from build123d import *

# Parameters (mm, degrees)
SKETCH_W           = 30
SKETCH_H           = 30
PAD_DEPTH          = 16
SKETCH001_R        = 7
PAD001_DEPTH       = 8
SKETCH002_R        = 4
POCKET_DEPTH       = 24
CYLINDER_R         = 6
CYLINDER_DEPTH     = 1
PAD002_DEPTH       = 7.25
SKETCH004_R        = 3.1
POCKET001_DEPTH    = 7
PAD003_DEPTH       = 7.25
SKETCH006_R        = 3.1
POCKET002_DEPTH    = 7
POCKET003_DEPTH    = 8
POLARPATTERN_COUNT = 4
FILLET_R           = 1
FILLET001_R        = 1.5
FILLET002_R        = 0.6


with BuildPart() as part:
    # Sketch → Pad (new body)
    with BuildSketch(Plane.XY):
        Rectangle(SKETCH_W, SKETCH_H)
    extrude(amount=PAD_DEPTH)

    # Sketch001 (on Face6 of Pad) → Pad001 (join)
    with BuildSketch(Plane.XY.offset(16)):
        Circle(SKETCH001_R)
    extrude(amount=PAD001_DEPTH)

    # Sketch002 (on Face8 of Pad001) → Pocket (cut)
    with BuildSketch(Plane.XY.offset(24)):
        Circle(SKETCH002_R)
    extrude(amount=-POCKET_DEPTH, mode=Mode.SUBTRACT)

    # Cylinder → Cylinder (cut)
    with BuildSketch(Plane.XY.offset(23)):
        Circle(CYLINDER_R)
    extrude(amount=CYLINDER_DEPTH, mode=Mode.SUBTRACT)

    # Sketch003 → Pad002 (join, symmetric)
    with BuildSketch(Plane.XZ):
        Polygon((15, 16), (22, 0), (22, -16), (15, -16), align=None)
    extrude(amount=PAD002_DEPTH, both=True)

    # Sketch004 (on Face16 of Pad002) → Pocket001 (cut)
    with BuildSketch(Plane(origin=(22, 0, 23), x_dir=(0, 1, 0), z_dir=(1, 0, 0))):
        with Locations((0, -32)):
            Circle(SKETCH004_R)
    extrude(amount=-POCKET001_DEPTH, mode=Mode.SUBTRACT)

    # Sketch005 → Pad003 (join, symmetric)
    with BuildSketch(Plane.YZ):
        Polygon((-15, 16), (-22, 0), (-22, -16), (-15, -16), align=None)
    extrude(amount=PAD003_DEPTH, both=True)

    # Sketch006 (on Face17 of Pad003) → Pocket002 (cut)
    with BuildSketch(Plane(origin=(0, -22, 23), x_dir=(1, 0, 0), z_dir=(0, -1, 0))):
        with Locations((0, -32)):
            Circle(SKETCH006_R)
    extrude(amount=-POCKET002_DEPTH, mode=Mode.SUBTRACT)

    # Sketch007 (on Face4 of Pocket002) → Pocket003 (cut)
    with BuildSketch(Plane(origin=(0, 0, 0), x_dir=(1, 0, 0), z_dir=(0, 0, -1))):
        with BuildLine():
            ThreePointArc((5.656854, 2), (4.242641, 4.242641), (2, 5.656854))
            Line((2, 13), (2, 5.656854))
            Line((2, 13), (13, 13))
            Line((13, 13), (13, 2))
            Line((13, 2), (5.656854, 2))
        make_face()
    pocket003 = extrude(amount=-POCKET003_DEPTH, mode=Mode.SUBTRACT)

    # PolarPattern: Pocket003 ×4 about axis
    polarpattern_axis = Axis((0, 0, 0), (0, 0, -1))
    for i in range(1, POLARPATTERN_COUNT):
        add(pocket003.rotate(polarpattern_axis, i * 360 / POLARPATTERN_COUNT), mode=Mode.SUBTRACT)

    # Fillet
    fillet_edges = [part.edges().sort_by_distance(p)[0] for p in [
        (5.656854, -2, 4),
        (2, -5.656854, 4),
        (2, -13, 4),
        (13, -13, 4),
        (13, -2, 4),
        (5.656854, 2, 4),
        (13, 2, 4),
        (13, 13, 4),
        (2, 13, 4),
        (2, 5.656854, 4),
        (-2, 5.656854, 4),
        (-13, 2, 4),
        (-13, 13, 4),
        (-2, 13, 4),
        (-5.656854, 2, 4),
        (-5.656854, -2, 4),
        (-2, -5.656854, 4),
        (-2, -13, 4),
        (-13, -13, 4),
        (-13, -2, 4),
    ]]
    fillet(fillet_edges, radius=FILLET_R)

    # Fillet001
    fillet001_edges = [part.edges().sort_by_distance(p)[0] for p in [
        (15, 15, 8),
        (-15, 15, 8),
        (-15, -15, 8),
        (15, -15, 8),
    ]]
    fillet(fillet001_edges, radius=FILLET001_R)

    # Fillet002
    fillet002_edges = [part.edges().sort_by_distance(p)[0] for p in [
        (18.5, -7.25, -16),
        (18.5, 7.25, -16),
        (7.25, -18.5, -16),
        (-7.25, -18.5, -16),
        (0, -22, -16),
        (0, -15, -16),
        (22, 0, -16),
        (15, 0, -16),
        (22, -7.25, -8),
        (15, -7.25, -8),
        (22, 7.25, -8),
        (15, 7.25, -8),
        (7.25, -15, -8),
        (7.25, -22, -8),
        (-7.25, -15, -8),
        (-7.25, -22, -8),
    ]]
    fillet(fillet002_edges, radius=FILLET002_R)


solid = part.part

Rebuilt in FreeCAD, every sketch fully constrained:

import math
import FreeCAD as App
import Part
import Sketcher
from FreeCAD import Vector


def edges_at(feature, points):
    """Names of the edges that pass closest to the given points."""
    edges = feature.Shape.Edges
    near = lambda p: min(range(len(edges)), key=lambda i: edges[i].distToShape(Part.Vertex(*p))[0])
    return sorted({f"Edge{near(p) + 1}" for p in points})


def add_polygon(sketch, points):
    """Adds a closed chain of lines whose ends are joined by coincident constraints."""
    first, n = sketch.GeometryCount, len(points)
    for a, b in zip(points, points[1:] + points[:1]):
        sketch.addGeometry(Part.LineSegment(App.Vector(*a, 0), App.Vector(*b, 0)), False)
    for i in range(n):
        sketch.addConstraint(Sketcher.Constraint("Coincident", first + i, 2, first + (i + 1) % n, 1))

doc = App.newDocument("Part")
body = doc.addObject("PartDesign::Body", "Body")

# Sketch on XY plane
sketch1 = body.newObject("Sketcher::SketchObject", "Sketch")
sketch1.AttachmentSupport = (doc.getObject("XY_Plane"), [""])
sketch1.MapMode = "FlatFace"
add_polygon(sketch1, [(-15, 15), (-15, -15), (15, -15), (15, 15)])  # lines 0-3
sketch1.addConstraint([
    Sketcher.Constraint("Vertical", 0),
    Sketcher.Constraint("Horizontal", 1),
    Sketcher.Constraint("Vertical", 2),
    Sketcher.Constraint("Horizontal", 3),
    Sketcher.Constraint("Symmetric", 0, 2, 2, 2, -1, 1),
    Sketcher.Constraint("Equal", 3, 0),
    Sketcher.Constraint("DistanceX", 1, 1, 1, 2, 30.0),
])
pad1 = body.newObject("PartDesign::Pad", "Pad")
pad1.Profile = sketch1
pad1.Length = 16

# Sketch on XY plane
sketch2 = body.newObject("Sketcher::SketchObject", "Sketch001")
sketch2.AttachmentSupport = (doc.getObject("XY_Plane"), [""])
sketch2.MapMode = "FlatFace"
sketch2.AttachmentOffset = App.Placement(Vector(0, 0, 16), App.Rotation())
sketch2.addGeometry(Part.Circle(Vector(0, 0, 0), Vector(0, 0, 1), 7), False)
sketch2.addConstraint([
    Sketcher.Constraint("Coincident", 0, 3, -1, 1),
    Sketcher.Constraint("Diameter", 0, 14.0),
])
pad2 = body.newObject("PartDesign::Pad", "Pad001")
pad2.Profile = sketch2
pad2.Length = 8

# Sketch on XY plane
sketch3 = body.newObject("Sketcher::SketchObject", "Sketch002")
sketch3.AttachmentSupport = (doc.getObject("XY_Plane"), [""])
sketch3.MapMode = "FlatFace"
sketch3.AttachmentOffset = App.Placement(Vector(0, 0, 24), App.Rotation())
sketch3.addGeometry(Part.Circle(Vector(0, 0, 0), Vector(0, 0, 1), 4), False)
sketch3.addConstraint([
    Sketcher.Constraint("Coincident", 0, 3, -1, 1),
    Sketcher.Constraint("Diameter", 0, 8.0),
])
pocket1 = body.newObject("PartDesign::Pocket", "Pocket")
pocket1.Profile = sketch3
pocket1.Length = 24

# Sketch on XY plane
sketch4 = body.newObject("Sketcher::SketchObject", "Sketch003")
sketch4.AttachmentSupport = (doc.getObject("XY_Plane"), [""])
sketch4.MapMode = "FlatFace"
sketch4.AttachmentOffset = App.Placement(Vector(0, 0, 23), App.Rotation())
sketch4.addGeometry(Part.Circle(Vector(0, 0, 0), Vector(0, 0, 1), 6), False)
sketch4.addConstraint([
    Sketcher.Constraint("Coincident", 0, 3, -1, 1),
    Sketcher.Constraint("Diameter", 0, 12.0),
])
pocket2 = body.newObject("PartDesign::Pocket", "Pocket001")
pocket2.Profile = sketch4
pocket2.Length = 1
pocket2.Reversed = True

# Sketch on XZ plane
sketch5 = body.newObject("Sketcher::SketchObject", "Sketch004")
sketch5.AttachmentSupport = (doc.getObject("XZ_Plane"), [""])
sketch5.MapMode = "FlatFace"
add_polygon(sketch5, [(22, 0), (15, 16), (15, -16), (22, -16)])  # lines 0-3
sketch5.addConstraint([
    Sketcher.Constraint("Vertical", 1),
    Sketcher.Constraint("Horizontal", 2),
    Sketcher.Constraint("Vertical", 3),
    Sketcher.Constraint("PointOnObject", 3, 2, -1),
    Sketcher.Constraint("DistanceX", 2, 1, 2, 2, 7.0),
    Sketcher.Constraint("DistanceY", 1, 2, 1, 1, 32.0),
    Sketcher.Constraint("DistanceY", 3, 1, 3, 2, 16.0),
    Sketcher.Constraint("DistanceX", -1, 1, 0, 2, 15.0),
])
pad3 = body.newObject("PartDesign::Pad", "Pad002")
pad3.Profile = sketch5
pad3.Length = 14.5
pad3.Midplane = True

# Sketch on YZ plane
sketch6 = body.newObject("Sketcher::SketchObject", "Sketch005")
sketch6.AttachmentSupport = (doc.getObject("YZ_Plane"), [""])
sketch6.MapMode = "FlatFace"
sketch6.AttachmentOffset = App.Placement(Vector(0, 0, 22), App.Rotation())
sketch6.addGeometry(Part.Circle(Vector(0, -9, 0), Vector(0, 0, 1), 3.1), False)
sketch6.addConstraint([
    Sketcher.Constraint("PointOnObject", 0, 3, -2),
    Sketcher.Constraint("Diameter", 0, 6.2),
    Sketcher.Constraint("DistanceY", 0, 3, -1, 1, 9.0),
])
pocket3 = body.newObject("PartDesign::Pocket", "Pocket002")
pocket3.Profile = sketch6
pocket3.Length = 7

# Sketch on YZ plane
sketch7 = body.newObject("Sketcher::SketchObject", "Sketch006")
sketch7.AttachmentSupport = (doc.getObject("YZ_Plane"), [""])
sketch7.MapMode = "FlatFace"
add_polygon(sketch7, [(-15, 16), (-22, 0), (-22, -16), (-15, -16)])  # lines 0-3
sketch7.addConstraint([
    Sketcher.Constraint("Vertical", 1),
    Sketcher.Constraint("Horizontal", 2),
    Sketcher.Constraint("Vertical", 3),
    Sketcher.Constraint("PointOnObject", 0, 2, -1),
    Sketcher.Constraint("DistanceX", 2, 1, 2, 2, 7.0),
    Sketcher.Constraint("DistanceY", 1, 2, 1, 1, 16.0),
    Sketcher.Constraint("DistanceY", 3, 1, 3, 2, 32.0),
    Sketcher.Constraint("DistanceX", 0, 2, -1, 1, 22.0),
])
pad4 = body.newObject("PartDesign::Pad", "Pad003")
pad4.Profile = sketch7
pad4.Length = 14.5
pad4.Midplane = True

# Sketch on XZ plane
sketch8 = body.newObject("Sketcher::SketchObject", "Sketch007")
sketch8.AttachmentSupport = (doc.getObject("XZ_Plane"), [""])
sketch8.MapMode = "FlatFace"
sketch8.AttachmentOffset = App.Placement(Vector(0, 0, 22), App.Rotation())
sketch8.addGeometry(Part.Circle(Vector(0, -9, 0), Vector(0, 0, 1), 3.1), False)
sketch8.addConstraint([
    Sketcher.Constraint("PointOnObject", 0, 3, -2),
    Sketcher.Constraint("Diameter", 0, 6.2),
    Sketcher.Constraint("DistanceY", 0, 3, -1, 1, 9.0),
])
pocket4 = body.newObject("PartDesign::Pocket", "Pocket003")
pocket4.Profile = sketch8
pocket4.Length = 7

# Sketch on XY plane
sketch9 = body.newObject("Sketcher::SketchObject", "Sketch008")
sketch9.AttachmentSupport = (doc.getObject("XY_Plane"), [""])
sketch9.MapMode = "FlatFace"
sketch9.addGeometry([
    Part.ArcOfCircle(Part.Circle(Vector(0, 0, 0), Vector(0, 0, 1), 6), math.radians(-71), math.radians(-19)),  # 0
    Part.LineSegment(Vector(6, -2, 0), Vector(13, -2, 0)),  # 1
    Part.LineSegment(Vector(13, -2, 0), Vector(13, -13, 0)),  # 2
    Part.LineSegment(Vector(13, -13, 0), Vector(2, -13, 0)),  # 3
    Part.LineSegment(Vector(2, -13, 0), Vector(2, -6, 0)),  # 4
], False)
sketch9.addConstraint([
    Sketcher.Constraint("Coincident", 0, 2, 1, 1),
    Sketcher.Constraint("Coincident", 1, 2, 2, 1),
    Sketcher.Constraint("Coincident", 2, 2, 3, 1),
    Sketcher.Constraint("Coincident", 3, 2, 4, 1),
    Sketcher.Constraint("Coincident", 4, 2, 0, 1),
    Sketcher.Constraint("Horizontal", 1),
    Sketcher.Constraint("Vertical", 2),
    Sketcher.Constraint("Horizontal", 3),
    Sketcher.Constraint("Vertical", 4),
    Sketcher.Constraint("Coincident", 0, 3, -1, 1),
    Sketcher.Constraint("Equal", 3, 2),
    Sketcher.Constraint("Equal", 1, 4),
    Sketcher.Constraint("DistanceX", 3, 2, 3, 1, 11.0),
    Sketcher.Constraint("DistanceY", 0, 2, -1, 1, 2.0),
    Sketcher.Constraint("Radius", 0, 5.999994),
])
pocket5 = body.newObject("PartDesign::Pocket", "Pocket004")
pocket5.Profile = sketch9
pocket5.Length = 8
pocket5.Reversed = True
doc.recompute()

polarpattern = body.newObject("PartDesign::PolarPattern", "PolarPattern")
polarpattern.Originals = [pocket5]
polarpattern.Axis = (doc.getObject("Z_Axis"), [""])
polarpattern.Angle = 360
polarpattern.Occurrences = 4
body.Tip = polarpattern
doc.recompute()

fillet = body.newObject("PartDesign::Fillet", "Fillet")
fillet.Base = (polarpattern, edges_at(polarpattern, [
    (5.657, -2, 4),
    (2, -5.657, 4),
    (2, -13, 4),
    (13, -13, 4),
    (13, -2, 4),
    (5.657, 2, 4),
    (13, 2, 4),
    (13, 13, 4),
    (2, 13, 4),
    (2, 5.657, 4),
    (-2, 5.657, 4),
    (-13, 2, 4),
    (-13, 13, 4),
    (-2, 13, 4),
    (-5.657, 2, 4),
    (-5.657, -2, 4),
    (-2, -5.657, 4),
    (-2, -13, 4),
    (-13, -13, 4),
    (-13, -2, 4),
]))
fillet.Radius = 1
doc.recompute()

fillet2 = body.newObject("PartDesign::Fillet", "Fillet001")
fillet2.Base = (fillet, edges_at(fillet, [
    (15, 15, 8),
    (-15, 15, 8),
    (-15, -15, 8),
    (15, -15, 8),
]))
fillet2.Radius = 1.5
doc.recompute()

fillet3 = body.newObject("PartDesign::Fillet", "Fillet002")
fillet3.Base = (fillet2, edges_at(fillet2, [
    (18.5, -7.25, -16),
    (18.5, 7.25, -16),
    (7.25, -18.5, -16),
    (-7.25, -18.5, -16),
    (0, -22, -16),
    (0, -15, -16),
    (22, 0, -16),
    (15, 0, -16),
    (22, -7.25, -8),
    (15, -7.25, -8),
    (22, 7.25, -8),
    (15, 7.25, -8),
    (7.25, -15, -8),
    (7.25, -22, -8),
    (-7.25, -15, -8),
    (-7.25, -22, -8),
]))
fillet3.Radius = 0.6

doc.recompute()
